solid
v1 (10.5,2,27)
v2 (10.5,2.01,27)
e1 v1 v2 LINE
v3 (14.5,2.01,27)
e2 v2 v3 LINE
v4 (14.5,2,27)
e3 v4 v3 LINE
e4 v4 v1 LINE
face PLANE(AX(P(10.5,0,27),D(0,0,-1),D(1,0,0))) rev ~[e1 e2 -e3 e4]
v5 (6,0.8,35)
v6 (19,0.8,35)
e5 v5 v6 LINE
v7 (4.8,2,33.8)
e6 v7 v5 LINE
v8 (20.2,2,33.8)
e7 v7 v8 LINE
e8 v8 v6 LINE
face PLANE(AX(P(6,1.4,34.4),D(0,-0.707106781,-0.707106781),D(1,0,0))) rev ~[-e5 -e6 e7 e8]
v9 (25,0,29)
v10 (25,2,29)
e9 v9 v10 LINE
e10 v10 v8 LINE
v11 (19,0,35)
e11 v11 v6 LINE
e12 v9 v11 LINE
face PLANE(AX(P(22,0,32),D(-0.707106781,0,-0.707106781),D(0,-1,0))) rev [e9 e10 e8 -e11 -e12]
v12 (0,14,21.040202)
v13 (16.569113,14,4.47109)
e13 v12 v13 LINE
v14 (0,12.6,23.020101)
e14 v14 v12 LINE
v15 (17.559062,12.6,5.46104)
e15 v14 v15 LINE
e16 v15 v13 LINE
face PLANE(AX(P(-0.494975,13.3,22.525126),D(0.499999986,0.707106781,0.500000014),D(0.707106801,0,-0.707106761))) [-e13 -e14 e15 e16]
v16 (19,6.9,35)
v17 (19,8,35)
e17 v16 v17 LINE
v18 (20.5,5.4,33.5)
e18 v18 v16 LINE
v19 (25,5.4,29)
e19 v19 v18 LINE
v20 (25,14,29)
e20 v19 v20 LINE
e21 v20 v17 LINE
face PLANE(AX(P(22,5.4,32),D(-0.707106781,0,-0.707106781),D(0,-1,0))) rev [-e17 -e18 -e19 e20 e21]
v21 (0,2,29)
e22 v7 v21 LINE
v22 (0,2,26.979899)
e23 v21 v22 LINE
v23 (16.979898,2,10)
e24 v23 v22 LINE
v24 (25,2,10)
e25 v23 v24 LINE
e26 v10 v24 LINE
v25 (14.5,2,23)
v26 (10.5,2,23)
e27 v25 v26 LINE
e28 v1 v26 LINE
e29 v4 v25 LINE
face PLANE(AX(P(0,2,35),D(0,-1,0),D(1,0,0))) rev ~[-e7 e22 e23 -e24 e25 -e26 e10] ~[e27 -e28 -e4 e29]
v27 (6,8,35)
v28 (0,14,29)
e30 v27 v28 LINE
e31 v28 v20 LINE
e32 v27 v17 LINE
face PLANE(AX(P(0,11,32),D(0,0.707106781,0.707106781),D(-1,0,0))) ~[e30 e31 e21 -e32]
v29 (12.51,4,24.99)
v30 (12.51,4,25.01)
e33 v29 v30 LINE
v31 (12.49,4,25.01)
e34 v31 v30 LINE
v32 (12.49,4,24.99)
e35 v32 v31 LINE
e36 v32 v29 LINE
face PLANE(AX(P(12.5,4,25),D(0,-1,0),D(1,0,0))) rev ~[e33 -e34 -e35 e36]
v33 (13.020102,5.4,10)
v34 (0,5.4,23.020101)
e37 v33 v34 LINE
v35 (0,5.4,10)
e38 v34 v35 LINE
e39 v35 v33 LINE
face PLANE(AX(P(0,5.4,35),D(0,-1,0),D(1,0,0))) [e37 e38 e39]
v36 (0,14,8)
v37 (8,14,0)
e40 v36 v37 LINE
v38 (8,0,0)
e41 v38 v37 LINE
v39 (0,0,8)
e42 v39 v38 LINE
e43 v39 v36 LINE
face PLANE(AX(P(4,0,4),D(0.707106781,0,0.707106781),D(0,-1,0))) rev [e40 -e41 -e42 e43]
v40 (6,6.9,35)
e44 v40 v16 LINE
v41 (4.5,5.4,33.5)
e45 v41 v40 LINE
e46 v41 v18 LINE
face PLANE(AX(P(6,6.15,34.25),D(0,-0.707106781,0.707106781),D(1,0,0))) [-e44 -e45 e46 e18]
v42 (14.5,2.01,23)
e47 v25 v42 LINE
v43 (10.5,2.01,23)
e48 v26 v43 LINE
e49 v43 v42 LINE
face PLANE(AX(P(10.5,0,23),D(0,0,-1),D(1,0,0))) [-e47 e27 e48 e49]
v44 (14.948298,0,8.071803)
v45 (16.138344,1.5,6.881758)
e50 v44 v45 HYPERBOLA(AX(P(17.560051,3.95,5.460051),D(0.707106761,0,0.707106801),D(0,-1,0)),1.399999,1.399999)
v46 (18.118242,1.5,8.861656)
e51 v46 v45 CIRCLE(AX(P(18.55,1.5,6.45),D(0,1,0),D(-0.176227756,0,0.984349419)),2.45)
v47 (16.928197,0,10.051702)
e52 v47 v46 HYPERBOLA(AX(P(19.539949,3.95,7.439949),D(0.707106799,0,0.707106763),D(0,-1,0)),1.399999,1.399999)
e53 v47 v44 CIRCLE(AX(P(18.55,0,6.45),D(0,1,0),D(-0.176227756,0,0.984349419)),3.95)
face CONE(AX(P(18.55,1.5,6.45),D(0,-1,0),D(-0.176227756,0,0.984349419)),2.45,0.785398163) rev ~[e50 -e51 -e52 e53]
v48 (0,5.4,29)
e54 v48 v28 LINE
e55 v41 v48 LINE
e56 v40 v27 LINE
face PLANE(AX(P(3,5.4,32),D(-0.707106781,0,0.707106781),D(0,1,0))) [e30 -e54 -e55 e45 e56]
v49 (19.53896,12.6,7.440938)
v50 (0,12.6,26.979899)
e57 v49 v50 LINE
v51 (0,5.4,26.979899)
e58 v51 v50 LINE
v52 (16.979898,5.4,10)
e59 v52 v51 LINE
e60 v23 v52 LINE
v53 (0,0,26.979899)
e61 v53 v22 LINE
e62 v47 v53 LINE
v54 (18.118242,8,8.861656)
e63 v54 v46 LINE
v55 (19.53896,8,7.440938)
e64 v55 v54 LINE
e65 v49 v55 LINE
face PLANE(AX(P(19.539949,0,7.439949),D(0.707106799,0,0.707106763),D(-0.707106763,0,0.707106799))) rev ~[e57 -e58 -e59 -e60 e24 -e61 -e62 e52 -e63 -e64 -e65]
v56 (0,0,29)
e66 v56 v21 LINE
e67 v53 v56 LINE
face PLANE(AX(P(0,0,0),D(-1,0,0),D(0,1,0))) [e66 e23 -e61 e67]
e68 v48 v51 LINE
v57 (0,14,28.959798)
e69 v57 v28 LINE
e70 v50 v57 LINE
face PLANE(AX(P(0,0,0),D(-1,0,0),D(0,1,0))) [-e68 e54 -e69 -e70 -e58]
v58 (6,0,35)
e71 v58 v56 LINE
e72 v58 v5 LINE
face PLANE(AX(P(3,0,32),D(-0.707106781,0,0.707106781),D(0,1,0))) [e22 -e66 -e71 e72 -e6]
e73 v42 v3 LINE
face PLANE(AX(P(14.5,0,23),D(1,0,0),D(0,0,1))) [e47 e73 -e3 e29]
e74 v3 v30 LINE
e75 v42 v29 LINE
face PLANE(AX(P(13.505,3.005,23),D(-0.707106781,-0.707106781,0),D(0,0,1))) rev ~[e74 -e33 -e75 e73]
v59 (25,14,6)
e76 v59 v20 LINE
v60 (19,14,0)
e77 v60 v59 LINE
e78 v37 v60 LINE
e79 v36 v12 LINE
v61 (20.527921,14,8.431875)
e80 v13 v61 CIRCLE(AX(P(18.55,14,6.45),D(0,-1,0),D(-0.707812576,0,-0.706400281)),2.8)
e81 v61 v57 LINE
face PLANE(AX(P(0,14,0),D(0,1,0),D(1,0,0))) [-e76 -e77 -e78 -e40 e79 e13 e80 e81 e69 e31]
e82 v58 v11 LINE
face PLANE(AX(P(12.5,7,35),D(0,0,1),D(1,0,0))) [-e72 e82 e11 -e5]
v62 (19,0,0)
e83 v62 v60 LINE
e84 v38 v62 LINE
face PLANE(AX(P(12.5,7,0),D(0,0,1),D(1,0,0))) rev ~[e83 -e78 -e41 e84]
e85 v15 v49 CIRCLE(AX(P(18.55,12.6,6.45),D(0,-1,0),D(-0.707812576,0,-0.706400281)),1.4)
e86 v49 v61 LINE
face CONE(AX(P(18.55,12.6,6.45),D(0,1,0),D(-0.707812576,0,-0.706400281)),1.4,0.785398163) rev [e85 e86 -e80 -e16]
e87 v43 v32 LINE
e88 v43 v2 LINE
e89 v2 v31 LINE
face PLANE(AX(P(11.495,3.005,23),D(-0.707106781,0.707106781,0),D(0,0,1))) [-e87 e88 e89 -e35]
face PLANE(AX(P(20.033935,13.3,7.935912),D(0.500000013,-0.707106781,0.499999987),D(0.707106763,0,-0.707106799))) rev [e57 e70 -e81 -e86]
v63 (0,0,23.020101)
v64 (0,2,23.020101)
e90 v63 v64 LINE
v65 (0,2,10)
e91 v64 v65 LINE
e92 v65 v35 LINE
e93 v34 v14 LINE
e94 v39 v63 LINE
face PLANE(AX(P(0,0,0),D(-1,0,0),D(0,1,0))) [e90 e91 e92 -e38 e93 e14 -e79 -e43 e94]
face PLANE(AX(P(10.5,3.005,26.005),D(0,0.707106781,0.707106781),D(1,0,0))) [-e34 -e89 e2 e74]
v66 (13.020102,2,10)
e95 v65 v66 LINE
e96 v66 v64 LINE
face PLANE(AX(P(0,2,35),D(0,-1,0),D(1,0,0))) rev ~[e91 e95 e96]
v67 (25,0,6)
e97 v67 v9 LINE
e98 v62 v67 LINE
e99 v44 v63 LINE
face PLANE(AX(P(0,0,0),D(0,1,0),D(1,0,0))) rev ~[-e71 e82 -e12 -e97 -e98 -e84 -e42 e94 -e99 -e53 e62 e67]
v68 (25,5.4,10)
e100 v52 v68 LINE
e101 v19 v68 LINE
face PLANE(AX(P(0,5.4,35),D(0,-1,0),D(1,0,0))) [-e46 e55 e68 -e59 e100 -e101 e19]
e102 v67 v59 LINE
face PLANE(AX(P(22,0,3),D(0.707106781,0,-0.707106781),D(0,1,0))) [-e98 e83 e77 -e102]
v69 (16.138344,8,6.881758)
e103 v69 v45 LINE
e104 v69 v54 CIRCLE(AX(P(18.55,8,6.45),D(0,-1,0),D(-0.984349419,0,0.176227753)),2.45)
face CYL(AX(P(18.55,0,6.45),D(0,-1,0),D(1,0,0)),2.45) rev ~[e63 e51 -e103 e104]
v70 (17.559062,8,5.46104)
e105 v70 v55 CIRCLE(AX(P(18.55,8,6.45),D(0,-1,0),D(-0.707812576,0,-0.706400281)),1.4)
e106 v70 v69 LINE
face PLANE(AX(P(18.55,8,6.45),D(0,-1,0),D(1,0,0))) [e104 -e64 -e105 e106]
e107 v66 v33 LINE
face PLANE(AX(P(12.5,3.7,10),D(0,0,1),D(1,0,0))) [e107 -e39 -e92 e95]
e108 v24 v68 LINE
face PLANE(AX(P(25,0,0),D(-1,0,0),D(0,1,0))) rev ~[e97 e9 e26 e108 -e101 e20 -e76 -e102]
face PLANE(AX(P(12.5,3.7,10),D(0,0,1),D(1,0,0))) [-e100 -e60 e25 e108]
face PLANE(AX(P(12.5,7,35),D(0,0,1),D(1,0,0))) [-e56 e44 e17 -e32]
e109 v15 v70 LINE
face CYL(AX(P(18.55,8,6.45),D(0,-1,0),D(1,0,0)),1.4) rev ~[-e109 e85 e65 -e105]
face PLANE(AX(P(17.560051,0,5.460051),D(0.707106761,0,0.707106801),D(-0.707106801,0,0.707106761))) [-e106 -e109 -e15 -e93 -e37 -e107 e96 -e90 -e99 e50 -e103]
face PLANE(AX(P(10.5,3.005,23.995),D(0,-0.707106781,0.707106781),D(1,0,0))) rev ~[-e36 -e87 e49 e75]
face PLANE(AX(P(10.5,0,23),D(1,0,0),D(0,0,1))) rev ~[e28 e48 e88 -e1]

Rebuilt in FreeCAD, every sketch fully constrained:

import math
import FreeCAD as App
import Part
import Sketcher

V = App.Vector
Q = App.Units.Quantity


def edges_at(feature, points):
    """Names of the edges that pass closest to the given points."""
    edges = feature.Shape.Edges
    near = lambda p: min(range(len(edges)), key=lambda i: edges[i].distToShape(Part.Vertex(*p))[0])
    return sorted({f"Edge{near(p) + 1}" for p in points})

doc = App.newDocument("Part")
body = doc.addObject("PartDesign::Body", "Body")

sketch1 = doc.addObject("Sketcher::SketchObject", "Sketch")
body.addObject(sketch1)
sketch1.AttachmentSupport = (doc.XY_Plane, [""])
sketch1.MapMode = "FlatFace"
sketch1.addGeometry(Part.LineSegment(V(0, 14, 0), V(0, 0, 0)), False)
sketch1.addGeometry(Part.LineSegment(V(0, 0, 0), V(25, 0, 0)), False)
sketch1.addGeometry(Part.LineSegment(V(25, 0, 0), V(25, 14, 0)), False)
sketch1.addGeometry(Part.LineSegment(V(25, 14, 0), V(0, 14, 0)), False)
sketch1.addConstraint(Sketcher.Constraint("Coincident", 0, 2, 1, 1))
sketch1.addConstraint(Sketcher.Constraint("Coincident", 1, 2, 2, 1))
sketch1.addConstraint(Sketcher.Constraint("Coincident", 2, 2, 3, 1))
sketch1.addConstraint(Sketcher.Constraint("Coincident", 3, 2, 0, 1))
sketch1.addConstraint(Sketcher.Constraint("Vertical", 0))
sketch1.addConstraint(Sketcher.Constraint("Horizontal", 1))
sketch1.addConstraint(Sketcher.Constraint("Vertical", 2))
sketch1.addConstraint(Sketcher.Constraint("Horizontal", 3))
sketch1.addConstraint(Sketcher.Constraint("Coincident", 0, 2, -1, 1))
sketch1.addConstraint(Sketcher.Constraint("DistanceX", 1, 1, 1, 2, Q("25 mm")))
sketch1.addConstraint(Sketcher.Constraint("DistanceY", 0, 2, 0, 1, Q("14 mm")))
pad1 = doc.addObject("PartDesign::Pad", "Pad")
body.addObject(pad1)
pad1.Profile = sketch1
pad1.Length = 35

sketch2 = doc.addObject("Sketcher::SketchObject", "Sketch001")
body.addObject(sketch2)
sketch2.AttachmentSupport = (doc.XY_Plane, [""])
sketch2.MapMode = "FlatFace"
sketch2.AttachmentOffset = App.Placement(V(0, 0, 35), App.Rotation())
sketch2.addGeometry(Part.LineSegment(V(0, 5.4, 0), V(0, 2, 0)), False)
sketch2.addGeometry(Part.LineSegment(V(0, 2, 0), V(25, 2, 0)), False)
sketch2.addGeometry(Part.LineSegment(V(25, 2, 0), V(25, 5.4, 0)), False)
sketch2.addGeometry(Part.LineSegment(V(25, 5.4, 0), V(0, 5.4, 0)), False)
sketch2.addConstraint(Sketcher.Constraint("Coincident", 0, 2, 1, 1))
sketch2.addConstraint(Sketcher.Constraint("Coincident", 1, 2, 2, 1))
sketch2.addConstraint(Sketcher.Constraint("Coincident", 2, 2, 3, 1))
sketch2.addConstraint(Sketcher.Constraint("Coincident", 3, 2, 0, 1))
sketch2.addConstraint(Sketcher.Constraint("Vertical", 0))
sketch2.addConstraint(Sketcher.Constraint("Horizontal", 1))
sketch2.addConstraint(Sketcher.Constraint("Vertical", 2))
sketch2.addConstraint(Sketcher.Constraint("Horizontal", 3))
sketch2.addConstraint(Sketcher.Constraint("PointOnObject", 0, 2, -2))
sketch2.addConstraint(Sketcher.Constraint("DistanceX", 1, 1, 1, 2, Q("25 mm")))
sketch2.addConstraint(Sketcher.Constraint("DistanceY", 0, 2, 0, 1, Q("3.4 mm")))
sketch2.addConstraint(Sketcher.Constraint("DistanceY", -1, 1, 0, 2, Q("2 mm")))
pocket1 = doc.addObject("PartDesign::Pocket", "Pocket")
body.addObject(pocket1)
pocket1.Profile = sketch2
pocket1.Length = 25

sketch3 = doc.addObject("Sketcher::SketchObject", "Sketch002")
body.addObject(sketch3)
sketch3.AttachmentSupport = (doc.XZ_Plane, [""])
sketch3.MapMode = "FlatFace"
sketch3.addGeometry(Part.Circle(V(18.6, 6.5, 0), V(0, 0, 1), 2.5), False)
sketch3.addConstraint(Sketcher.Constraint("Diameter", 0, Q("4.9 mm")))
sketch3.addConstraint(Sketcher.Constraint("DistanceX", -1, 1, 0, 3, Q("18.55 mm")))
sketch3.addConstraint(Sketcher.Constraint("DistanceY", -1, 1, 0, 3, Q("6.45 mm")))
pocket2 = doc.addObject("PartDesign::Pocket", "Pocket001")
body.addObject(pocket2)
pocket2.Profile = sketch3
pocket2.Length = 8

sketch4 = doc.addObject("Sketcher::SketchObject", "Sketch003")
body.addObject(sketch4)
sketch4.AttachmentSupport = (doc.XZ_Plane, [""])
sketch4.MapMode = "FlatFace"
sketch4.AttachmentOffset = App.Placement(V(0, 0, -8), App.Rotation())
sketch4.addGeometry(Part.Circle(V(18.6, 6.5, 0), V(0, 0, 1), 1.4), False)
sketch4.addConstraint(Sketcher.Constraint("Diameter", 0, Q("2.8 mm")))
sketch4.addConstraint(Sketcher.Constraint("DistanceX", -1, 1, 0, 3, Q("18.55 mm")))
sketch4.addConstraint(Sketcher.Constraint("DistanceY", -1, 1, 0, 3, Q("6.45 mm")))
pocket3 = doc.addObject("PartDesign::Pocket", "Pocket002")
body.addObject(pocket3)
pocket3.Profile = sketch4
pocket3.Type = "ThroughAll"
body2 = doc.addObject("PartDesign::Body", "Body001")

sketch5 = doc.addObject("Sketcher::SketchObject", "Sketch004")
body2.addObject(sketch5)
sketch5.AttachmentSupport = (doc.getObject("XZ_Plane001"), [""])
sketch5.MapMode = "FlatFace"
sketch5.addGeometry(Part.LineSegment(V(10.5, 27, 0), V(10.5, 23, 0)), False)
sketch5.addGeometry(Part.LineSegment(V(10.5, 23, 0), V(14.5, 23, 0)), False)
sketch5.addGeometry(Part.LineSegment(V(14.5, 23, 0), V(14.5, 27, 0)), False)
sketch5.addGeometry(Part.LineSegment(V(14.5, 27, 0), V(10.5, 27, 0)), False)
sketch5.addConstraint(Sketcher.Constraint("Coincident", 0, 2, 1, 1))
sketch5.addConstraint(Sketcher.Constraint("Coincident", 1, 2, 2, 1))
sketch5.addConstraint(Sketcher.Constraint("Coincident", 2, 2, 3, 1))
sketch5.addConstraint(Sketcher.Constraint("Coincident", 3, 2, 0, 1))
sketch5.addConstraint(Sketcher.Constraint("Vertical", 0))
sketch5.addConstraint(Sketcher.Constraint("Horizontal", 1))
sketch5.addConstraint(Sketcher.Constraint("Vertical", 2))
sketch5.addConstraint(Sketcher.Constraint("Horizontal", 3))
sketch5.addConstraint(Sketcher.Constraint("Equal", 3, 0))
sketch5.addConstraint(Sketcher.Constraint("DistanceX", 1, 1, 1, 2, Q("4 mm")))
sketch5.addConstraint(Sketcher.Constraint("DistanceY", -1, 1, 0, 2, Q("23 mm")))
sketch5.addConstraint(Sketcher.Constraint("DistanceX", -1, 1, 0, 2, Q("10.5 mm")))
pad2 = doc.addObject("PartDesign::Pad", "Pad001")
body2.addObject(pad2)
pad2.Profile = sketch5
pad2.Length = 4
pad2.Reversed = True
doc.recompute()

chamfer = doc.addObject("PartDesign::Chamfer", "Chamfer")
body2.addObject(chamfer)
chamfer.Base = (pad2, edges_at(pad2, [
    (12.5, 4, 23),
    (10.5, 4, 25),
    (12.5, 4, 27),
    (14.5, 4, 25),
]))
chamfer.Size = 1.99
doc.recompute()

boolean = doc.addObject("PartDesign::Boolean", "Boolean")
body2.addObject(boolean)
boolean.Type = "Fuse"
boolean.addObjects([body])

sketch6 = doc.addObject("Sketcher::SketchObject", "Sketch005")
body2.addObject(sketch6)
sketch6.AttachmentSupport = (doc.getObject("XZ_Plane001"), [""])
sketch6.MapMode = "FlatFace"
sketch6.addGeometry(Part.ArcOfCircle(Part.Circle(V(18.6, 6.5, 0), V(0, 0, 1), 1.4), math.radians(45), math.radians(225)), False)
sketch6.addGeometry(Part.LineSegment(V(19.5, 7.4, 0), V(0, 27, 0)), False)
sketch6.addGeometry(Part.LineSegment(V(0, 27, 0), V(0, 23, 0)), False)
sketch6.addGeometry(Part.LineSegment(V(0, 23, 0), V(17.6, 5.5, 0)), False)
sketch6.addConstraint(Sketcher.Constraint("Tangent", 0, 1, 1, 1))
sketch6.addConstraint(Sketcher.Constraint("Coincident", 1, 2, 2, 1))
sketch6.addConstraint(Sketcher.Constraint("Coincident", 2, 2, 3, 1))
sketch6.addConstraint(Sketcher.Constraint("Tangent", 3, 2, 0, 2))
sketch6.addConstraint(Sketcher.Constraint("Vertical", 2))
sketch6.addConstraint(Sketcher.Constraint("PointOnObject", 1, 2, -2))
sketch6.addConstraint(Sketcher.Constraint("Parallel", 1, 3))
sketch6.addConstraint(Sketcher.Constraint("Radius", 0, Q("1.399999 mm")))
sketch6.addConstraint(Sketcher.Constraint("Angle", 1, Q("134.999999 deg")))
sketch6.addConstraint(Sketcher.Constraint("DistanceX", -1, 1, 0, 3, Q("18.55 mm")))
sketch6.addConstraint(Sketcher.Constraint("DistanceY", -1, 1, 0, 3, Q("6.45 mm")))
pocket4 = doc.addObject("PartDesign::Pocket", "Pocket003")
body2.addObject(pocket4)
pocket4.Profile = sketch6
pocket4.Length = 17
doc.recompute()

chamfer2 = doc.addObject("PartDesign::Chamfer", "Chamfer001")
body2.addObject(chamfer2)
chamfer2.Base = (pocket4, edges_at(pocket4, [(0, 7, 0)]))
chamfer2.Size = 8
doc.recompute()

chamfer3 = doc.addObject("PartDesign::Chamfer", "Chamfer002")
body2.addObject(chamfer3)
chamfer3.Base = (chamfer2, edges_at(chamfer2, [(25, 7, 0)]))
chamfer3.Size = 6
doc.recompute()

chamfer4 = doc.addObject("PartDesign::Chamfer", "Chamfer003")
body2.addObject(chamfer4)
chamfer4.Base = (chamfer3, edges_at(chamfer3, [
    (0, 9.7, 35),
    (25, 9.7, 35),
    (0, 1, 35),
    (25, 1, 35),
    (12.5, 14, 35),
]))
chamfer4.Size = 6
doc.recompute()

chamfer5 = doc.addObject("PartDesign::Chamfer", "Chamfer004")
body2.addObject(chamfer5)
chamfer5.Base = (chamfer4, edges_at(chamfer4, [(20.282, 0, 4.718)]))
chamfer5.Size = 1.5
doc.recompute()

chamfer6 = doc.addObject("PartDesign::Chamfer", "Chamfer005")
body2.addObject(chamfer6)
chamfer6.Base = (chamfer5, edges_at(chamfer5, [(19.54, 14, 5.46)]))
chamfer6.Size = 1.4
doc.recompute()

chamfer7 = doc.addObject("PartDesign::Chamfer", "Chamfer006")
body2.addObject(chamfer7)
chamfer7.Base = (chamfer6, edges_at(chamfer6, [(12.5, 2, 35)]))
chamfer7.Size = 1.2
doc.recompute()

chamfer8 = doc.addObject("PartDesign::Chamfer", "Chamfer007")
body2.addObject(chamfer8)
chamfer8.Base = (chamfer7, edges_at(chamfer7, [(12.5, 5.4, 35)]))
chamfer8.Size = 1.5

doc.recompute()
